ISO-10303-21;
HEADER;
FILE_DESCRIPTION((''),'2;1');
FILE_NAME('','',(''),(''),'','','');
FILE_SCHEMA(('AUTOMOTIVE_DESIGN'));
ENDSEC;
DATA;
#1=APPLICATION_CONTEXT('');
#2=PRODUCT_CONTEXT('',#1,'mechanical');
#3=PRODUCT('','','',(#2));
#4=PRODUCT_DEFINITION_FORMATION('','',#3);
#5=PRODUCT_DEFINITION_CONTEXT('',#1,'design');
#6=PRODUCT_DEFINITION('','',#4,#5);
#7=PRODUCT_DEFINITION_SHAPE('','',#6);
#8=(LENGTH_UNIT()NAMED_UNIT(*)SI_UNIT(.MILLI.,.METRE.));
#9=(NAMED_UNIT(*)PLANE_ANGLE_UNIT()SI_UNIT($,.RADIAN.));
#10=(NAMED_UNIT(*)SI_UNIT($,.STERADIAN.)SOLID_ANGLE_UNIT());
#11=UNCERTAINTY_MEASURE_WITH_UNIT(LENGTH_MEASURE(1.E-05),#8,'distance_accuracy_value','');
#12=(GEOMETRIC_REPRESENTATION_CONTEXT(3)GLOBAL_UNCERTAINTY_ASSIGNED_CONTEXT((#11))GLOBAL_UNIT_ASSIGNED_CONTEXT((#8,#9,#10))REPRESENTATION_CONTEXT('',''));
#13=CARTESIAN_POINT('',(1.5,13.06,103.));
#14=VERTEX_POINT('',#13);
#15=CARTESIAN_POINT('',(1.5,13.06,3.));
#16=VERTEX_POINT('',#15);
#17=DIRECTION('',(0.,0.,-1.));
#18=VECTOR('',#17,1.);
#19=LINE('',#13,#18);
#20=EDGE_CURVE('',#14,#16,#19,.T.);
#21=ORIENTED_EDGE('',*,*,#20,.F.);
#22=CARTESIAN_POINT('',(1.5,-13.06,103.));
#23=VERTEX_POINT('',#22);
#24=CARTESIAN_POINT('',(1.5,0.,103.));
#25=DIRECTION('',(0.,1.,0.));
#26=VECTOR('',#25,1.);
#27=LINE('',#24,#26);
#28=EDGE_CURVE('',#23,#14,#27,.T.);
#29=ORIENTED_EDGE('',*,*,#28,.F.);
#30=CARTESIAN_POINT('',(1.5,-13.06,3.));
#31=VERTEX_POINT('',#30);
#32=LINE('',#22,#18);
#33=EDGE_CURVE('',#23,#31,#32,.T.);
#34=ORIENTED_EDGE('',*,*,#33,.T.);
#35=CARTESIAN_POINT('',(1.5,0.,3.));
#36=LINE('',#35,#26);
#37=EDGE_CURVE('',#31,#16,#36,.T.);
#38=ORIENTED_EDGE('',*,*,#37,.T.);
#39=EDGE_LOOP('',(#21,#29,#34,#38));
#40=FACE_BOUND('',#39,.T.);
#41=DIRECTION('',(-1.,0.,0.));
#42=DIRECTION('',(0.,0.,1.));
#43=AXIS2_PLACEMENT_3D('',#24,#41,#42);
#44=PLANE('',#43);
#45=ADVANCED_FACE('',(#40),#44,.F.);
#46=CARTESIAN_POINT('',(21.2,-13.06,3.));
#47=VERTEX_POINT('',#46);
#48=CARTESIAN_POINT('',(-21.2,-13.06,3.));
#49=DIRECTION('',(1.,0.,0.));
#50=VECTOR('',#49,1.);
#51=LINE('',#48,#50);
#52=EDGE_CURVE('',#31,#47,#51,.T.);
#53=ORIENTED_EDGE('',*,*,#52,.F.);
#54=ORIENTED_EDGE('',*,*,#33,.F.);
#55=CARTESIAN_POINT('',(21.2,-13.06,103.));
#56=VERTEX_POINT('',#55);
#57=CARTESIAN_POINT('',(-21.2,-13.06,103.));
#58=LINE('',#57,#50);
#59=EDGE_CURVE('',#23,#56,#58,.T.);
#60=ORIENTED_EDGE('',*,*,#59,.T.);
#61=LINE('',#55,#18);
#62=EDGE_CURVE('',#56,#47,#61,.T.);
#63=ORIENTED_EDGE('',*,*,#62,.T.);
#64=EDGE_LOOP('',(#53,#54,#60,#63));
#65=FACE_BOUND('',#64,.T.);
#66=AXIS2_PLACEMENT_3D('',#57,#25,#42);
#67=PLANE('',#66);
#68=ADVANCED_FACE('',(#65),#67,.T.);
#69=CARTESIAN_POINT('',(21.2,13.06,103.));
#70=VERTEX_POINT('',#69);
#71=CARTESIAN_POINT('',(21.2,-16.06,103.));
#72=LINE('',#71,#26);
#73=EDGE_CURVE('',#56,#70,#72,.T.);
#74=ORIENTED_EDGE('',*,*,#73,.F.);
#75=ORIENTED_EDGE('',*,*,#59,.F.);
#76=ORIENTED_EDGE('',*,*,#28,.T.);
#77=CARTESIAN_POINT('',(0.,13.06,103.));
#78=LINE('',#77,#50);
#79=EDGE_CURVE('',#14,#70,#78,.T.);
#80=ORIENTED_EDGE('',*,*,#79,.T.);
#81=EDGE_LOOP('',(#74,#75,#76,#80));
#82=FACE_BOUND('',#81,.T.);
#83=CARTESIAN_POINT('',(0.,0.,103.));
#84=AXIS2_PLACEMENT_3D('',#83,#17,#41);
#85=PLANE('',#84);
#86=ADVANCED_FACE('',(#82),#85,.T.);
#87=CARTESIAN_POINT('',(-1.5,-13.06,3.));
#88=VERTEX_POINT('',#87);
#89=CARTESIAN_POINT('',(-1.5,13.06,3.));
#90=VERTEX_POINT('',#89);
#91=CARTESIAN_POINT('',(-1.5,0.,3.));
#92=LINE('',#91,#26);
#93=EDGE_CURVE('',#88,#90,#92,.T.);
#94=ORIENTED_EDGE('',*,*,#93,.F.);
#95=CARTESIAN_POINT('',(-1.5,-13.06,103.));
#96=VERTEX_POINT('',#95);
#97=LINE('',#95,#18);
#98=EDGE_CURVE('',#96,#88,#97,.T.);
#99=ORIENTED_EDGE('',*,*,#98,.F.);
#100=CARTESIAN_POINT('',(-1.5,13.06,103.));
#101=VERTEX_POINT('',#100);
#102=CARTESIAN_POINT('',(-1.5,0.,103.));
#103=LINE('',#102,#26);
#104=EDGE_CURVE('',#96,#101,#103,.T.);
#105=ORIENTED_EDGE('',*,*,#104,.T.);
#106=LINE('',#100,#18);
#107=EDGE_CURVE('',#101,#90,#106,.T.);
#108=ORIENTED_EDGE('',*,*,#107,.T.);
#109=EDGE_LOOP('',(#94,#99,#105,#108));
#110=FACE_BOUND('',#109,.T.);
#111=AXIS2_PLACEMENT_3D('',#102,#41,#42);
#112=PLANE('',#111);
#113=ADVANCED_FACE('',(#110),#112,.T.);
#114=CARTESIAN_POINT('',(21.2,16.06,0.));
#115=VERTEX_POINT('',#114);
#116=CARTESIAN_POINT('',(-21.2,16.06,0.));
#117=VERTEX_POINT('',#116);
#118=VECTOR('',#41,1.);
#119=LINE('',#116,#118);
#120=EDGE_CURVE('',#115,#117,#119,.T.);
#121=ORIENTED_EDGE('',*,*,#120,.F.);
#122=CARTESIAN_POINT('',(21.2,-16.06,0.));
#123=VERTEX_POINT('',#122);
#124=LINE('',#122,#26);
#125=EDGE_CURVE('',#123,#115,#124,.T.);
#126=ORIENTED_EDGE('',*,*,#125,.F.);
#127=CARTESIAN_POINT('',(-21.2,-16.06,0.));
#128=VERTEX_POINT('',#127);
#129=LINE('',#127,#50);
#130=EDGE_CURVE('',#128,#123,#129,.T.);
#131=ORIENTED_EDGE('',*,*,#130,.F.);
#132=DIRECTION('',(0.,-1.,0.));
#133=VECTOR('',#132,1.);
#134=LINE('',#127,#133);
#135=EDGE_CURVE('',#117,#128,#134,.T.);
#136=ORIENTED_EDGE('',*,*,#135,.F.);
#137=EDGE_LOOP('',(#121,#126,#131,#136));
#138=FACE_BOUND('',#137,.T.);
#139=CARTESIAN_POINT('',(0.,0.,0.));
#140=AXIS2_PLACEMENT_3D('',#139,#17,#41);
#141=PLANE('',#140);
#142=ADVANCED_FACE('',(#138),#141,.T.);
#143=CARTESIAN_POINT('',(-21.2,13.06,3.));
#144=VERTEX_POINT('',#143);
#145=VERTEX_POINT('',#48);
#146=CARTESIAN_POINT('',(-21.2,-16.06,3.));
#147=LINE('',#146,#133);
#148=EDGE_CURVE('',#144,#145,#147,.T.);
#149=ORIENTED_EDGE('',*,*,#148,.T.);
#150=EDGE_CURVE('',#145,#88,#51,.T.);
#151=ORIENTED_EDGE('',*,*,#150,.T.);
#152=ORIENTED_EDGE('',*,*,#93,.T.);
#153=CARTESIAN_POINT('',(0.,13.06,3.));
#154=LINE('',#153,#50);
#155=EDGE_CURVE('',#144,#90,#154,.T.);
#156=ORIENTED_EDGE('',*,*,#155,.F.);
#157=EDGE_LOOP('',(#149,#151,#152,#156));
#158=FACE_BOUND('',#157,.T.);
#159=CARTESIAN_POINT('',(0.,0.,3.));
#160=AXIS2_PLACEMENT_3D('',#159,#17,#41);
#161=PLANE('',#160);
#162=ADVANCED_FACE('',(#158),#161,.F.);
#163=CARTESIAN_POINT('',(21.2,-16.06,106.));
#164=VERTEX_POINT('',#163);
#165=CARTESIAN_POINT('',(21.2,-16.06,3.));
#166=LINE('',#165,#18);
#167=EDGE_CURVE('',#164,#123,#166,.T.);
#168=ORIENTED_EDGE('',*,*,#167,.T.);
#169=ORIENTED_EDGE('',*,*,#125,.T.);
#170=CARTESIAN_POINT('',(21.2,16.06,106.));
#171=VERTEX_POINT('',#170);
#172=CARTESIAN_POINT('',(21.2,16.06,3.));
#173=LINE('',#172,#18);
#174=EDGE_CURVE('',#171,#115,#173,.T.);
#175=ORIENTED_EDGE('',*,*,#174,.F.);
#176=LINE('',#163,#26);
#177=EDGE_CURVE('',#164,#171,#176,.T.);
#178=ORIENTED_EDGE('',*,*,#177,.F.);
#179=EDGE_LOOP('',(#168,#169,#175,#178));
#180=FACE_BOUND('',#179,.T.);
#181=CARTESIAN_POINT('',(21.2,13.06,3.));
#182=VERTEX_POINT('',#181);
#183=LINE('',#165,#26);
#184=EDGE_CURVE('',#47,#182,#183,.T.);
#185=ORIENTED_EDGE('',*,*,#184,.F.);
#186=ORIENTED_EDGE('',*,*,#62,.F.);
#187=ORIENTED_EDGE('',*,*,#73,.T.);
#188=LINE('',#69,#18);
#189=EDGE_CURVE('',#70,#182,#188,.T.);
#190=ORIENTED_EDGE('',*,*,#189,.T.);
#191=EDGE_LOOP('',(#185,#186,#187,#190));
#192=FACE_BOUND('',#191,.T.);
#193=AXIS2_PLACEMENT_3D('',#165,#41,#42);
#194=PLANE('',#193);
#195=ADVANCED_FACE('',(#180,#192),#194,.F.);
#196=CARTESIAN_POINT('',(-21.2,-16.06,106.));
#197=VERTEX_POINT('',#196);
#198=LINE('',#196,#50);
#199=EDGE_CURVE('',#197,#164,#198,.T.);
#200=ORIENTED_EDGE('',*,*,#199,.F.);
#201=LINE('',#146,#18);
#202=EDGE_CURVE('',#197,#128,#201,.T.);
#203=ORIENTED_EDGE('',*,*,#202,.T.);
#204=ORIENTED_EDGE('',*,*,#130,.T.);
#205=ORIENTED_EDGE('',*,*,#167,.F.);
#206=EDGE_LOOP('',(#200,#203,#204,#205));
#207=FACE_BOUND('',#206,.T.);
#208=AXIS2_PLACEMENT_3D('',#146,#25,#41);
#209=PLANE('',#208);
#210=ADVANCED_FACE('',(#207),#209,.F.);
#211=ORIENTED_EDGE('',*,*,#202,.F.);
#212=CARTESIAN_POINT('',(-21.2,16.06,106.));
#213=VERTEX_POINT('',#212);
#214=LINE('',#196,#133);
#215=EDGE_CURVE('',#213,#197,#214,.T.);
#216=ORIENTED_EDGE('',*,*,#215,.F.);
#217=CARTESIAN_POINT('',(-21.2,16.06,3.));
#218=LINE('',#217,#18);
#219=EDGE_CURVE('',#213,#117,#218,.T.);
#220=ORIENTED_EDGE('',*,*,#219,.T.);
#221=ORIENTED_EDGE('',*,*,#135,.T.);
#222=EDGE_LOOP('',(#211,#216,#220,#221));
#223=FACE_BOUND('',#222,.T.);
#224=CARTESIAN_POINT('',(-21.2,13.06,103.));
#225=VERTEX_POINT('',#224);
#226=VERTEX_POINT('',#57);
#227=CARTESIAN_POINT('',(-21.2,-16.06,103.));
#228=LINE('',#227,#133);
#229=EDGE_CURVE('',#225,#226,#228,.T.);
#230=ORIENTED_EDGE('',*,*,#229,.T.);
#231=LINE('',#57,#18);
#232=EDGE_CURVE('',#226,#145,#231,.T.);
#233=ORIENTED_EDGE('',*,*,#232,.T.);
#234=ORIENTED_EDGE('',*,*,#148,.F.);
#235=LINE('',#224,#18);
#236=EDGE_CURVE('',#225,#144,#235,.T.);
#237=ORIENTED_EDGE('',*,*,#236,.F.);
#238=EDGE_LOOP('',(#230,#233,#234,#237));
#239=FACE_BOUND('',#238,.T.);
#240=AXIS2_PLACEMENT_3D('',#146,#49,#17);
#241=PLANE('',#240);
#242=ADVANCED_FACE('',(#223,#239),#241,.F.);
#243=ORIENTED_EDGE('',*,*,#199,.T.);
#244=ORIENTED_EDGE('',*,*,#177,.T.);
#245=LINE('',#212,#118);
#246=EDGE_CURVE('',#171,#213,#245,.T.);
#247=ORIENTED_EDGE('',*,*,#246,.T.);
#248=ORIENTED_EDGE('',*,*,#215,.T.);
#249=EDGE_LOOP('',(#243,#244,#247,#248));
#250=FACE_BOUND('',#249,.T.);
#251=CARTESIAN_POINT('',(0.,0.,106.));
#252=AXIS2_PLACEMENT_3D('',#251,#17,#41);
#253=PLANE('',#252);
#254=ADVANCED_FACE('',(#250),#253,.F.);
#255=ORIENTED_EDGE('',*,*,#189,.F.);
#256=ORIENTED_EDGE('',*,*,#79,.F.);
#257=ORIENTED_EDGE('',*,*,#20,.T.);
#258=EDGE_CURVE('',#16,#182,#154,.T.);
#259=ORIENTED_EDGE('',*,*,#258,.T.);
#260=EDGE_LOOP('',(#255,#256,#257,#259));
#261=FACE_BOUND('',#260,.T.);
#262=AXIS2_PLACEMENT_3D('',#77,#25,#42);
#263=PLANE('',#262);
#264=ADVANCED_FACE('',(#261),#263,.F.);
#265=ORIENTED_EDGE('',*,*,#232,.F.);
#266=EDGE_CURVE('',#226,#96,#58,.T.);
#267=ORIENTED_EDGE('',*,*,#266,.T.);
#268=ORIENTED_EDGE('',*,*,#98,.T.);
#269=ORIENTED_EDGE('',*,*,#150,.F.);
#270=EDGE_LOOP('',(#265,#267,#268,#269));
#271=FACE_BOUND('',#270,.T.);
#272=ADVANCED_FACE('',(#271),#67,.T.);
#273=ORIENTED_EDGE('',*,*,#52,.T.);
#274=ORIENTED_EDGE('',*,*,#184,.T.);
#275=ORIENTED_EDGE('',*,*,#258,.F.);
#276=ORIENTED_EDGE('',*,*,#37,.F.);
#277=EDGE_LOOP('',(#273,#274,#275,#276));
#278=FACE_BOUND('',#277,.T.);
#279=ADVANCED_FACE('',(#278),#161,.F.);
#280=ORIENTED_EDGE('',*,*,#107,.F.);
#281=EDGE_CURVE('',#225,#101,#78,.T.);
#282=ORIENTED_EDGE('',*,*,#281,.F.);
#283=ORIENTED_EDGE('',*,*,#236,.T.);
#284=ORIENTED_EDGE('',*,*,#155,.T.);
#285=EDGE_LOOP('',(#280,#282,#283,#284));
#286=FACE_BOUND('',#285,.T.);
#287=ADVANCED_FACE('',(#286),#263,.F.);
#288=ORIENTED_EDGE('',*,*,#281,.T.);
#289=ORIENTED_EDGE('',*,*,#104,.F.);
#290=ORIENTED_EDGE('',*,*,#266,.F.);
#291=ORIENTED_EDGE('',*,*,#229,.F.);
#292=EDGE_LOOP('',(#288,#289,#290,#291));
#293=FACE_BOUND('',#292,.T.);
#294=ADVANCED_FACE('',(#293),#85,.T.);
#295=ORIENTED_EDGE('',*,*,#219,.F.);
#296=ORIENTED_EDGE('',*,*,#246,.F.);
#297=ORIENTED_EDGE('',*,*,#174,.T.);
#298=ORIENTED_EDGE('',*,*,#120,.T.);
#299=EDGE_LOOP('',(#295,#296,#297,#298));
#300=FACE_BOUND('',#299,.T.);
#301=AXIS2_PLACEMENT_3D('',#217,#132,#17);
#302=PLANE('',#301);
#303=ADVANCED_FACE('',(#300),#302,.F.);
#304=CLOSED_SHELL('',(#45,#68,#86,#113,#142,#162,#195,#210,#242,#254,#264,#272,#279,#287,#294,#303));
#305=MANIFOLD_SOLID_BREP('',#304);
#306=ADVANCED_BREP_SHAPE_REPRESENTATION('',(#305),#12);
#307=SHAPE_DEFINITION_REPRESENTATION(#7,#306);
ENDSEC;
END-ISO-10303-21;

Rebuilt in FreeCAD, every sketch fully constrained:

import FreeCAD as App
import Part
import Sketcher

V = App.Vector
Q = App.Units.Quantity

doc = App.newDocument("Part")
body = doc.addObject("PartDesign::Body", "Body")

# Sketch on XY plane
sketch1 = body.newObject("Sketcher::SketchObject", "Sketch")
sketch1.AttachmentSupport = (doc.getObject("XY_Plane"), [""])
sketch1.MapMode = "FlatFace"
sketch1.addGeometry([
    Part.LineSegment(V(-21.2, 16.06, 0), V(-21.2, -16.06, 0)),
    Part.LineSegment(V(-21.2, -16.06, 0), V(21.2, -16.06, 0)),
    Part.LineSegment(V(21.2, -16.06, 0), V(21.2, 16.06, 0)),
    Part.LineSegment(V(21.2, 16.06, 0), V(-21.2, 16.06, 0)),
], False)
sketch1.addConstraint([
    Sketcher.Constraint("Coincident", 0, 2, 1, 1),
    Sketcher.Constraint("Coincident", 1, 2, 2, 1),
    Sketcher.Constraint("Coincident", 2, 2, 3, 1),
    Sketcher.Constraint("Coincident", 3, 2, 0, 1),
    Sketcher.Constraint("Vertical", 0),
    Sketcher.Constraint("Horizontal", 1),
    Sketcher.Constraint("Vertical", 2),
    Sketcher.Constraint("Horizontal", 3),
    Sketcher.Constraint("Symmetric", 0, 2, 2, 2, -1, 1),
    Sketcher.Constraint("DistanceX", 1, 1, 1, 2, Q("42.4 mm")),
    Sketcher.Constraint("DistanceY", 0, 2, 0, 1, Q("32.12 mm")),
])
pad1 = body.newObject("PartDesign::Pad", "Pad")
pad1.Profile = sketch1
pad1.Length = 3

# Sketch on XY plane
sketch2 = body.newObject("Sketcher::SketchObject", "Sketch001")
sketch2.AttachmentSupport = (doc.getObject("XY_Plane"), [""])
sketch2.MapMode = "FlatFace"
sketch2.AttachmentOffset = App.Placement(V(0, 0, 3), App.Rotation())
sketch2.addGeometry([
    Part.LineSegment(V(-21.2, 16.06, 0), V(-21.2, 13.06, 0)),  # 0
    Part.LineSegment(V(-21.2, 13.06, 0), V(-1.5, 13.06, 0)),  # 1
    Part.LineSegment(V(-1.5, 13.06, 0), V(-1.5, -13.06, 0)),  # 2
    Part.LineSegment(V(-1.5, -13.06, 0), V(-21.2, -13.06, 0)),  # 3
    Part.LineSegment(V(-21.2, -13.06, 0), V(-21.2, -16.06, 0)),  # 4
    Part.LineSegment(V(-21.2, -16.06, 0), V(21.2, -16.06, 0)),  # 5
    Part.LineSegment(V(21.2, -16.06, 0), V(21.2, -13.06, 0)),  # 6
    Part.LineSegment(V(21.2, -13.06, 0), V(1.5, -13.06, 0)),  # 7
    Part.LineSegment(V(1.5, -13.06, 0), V(1.5, 13.06, 0)),  # 8
    Part.LineSegment(V(1.5, 13.06, 0), V(21.2, 13.06, 0)),  # 9
    Part.LineSegment(V(21.2, 13.06, 0), V(21.2, 16.06, 0)),  # 10
    Part.LineSegment(V(21.2, 16.06, 0), V(-21.2, 16.06, 0)),  # 11
], False)
sketch2.addConstraint([
    Sketcher.Constraint("Coincident", 0, 2, 1, 1),
    Sketcher.Constraint("Coincident", 1, 2, 2, 1),
    Sketcher.Constraint("Coincident", 2, 2, 3, 1),
    Sketcher.Constraint("Coincident", 3, 2, 4, 1),
    Sketcher.Constraint("Coincident", 4, 2, 5, 1),
    Sketcher.Constraint("Coincident", 5, 2, 6, 1),
    Sketcher.Constraint("Coincident", 6, 2, 7, 1),
    Sketcher.Constraint("Coincident", 7, 2, 8, 1),
    Sketcher.Constraint("Coincident", 8, 2, 9, 1),
    Sketcher.Constraint("Coincident", 9, 2, 10, 1),
    Sketcher.Constraint("Coincident", 10, 2, 11, 1),
    Sketcher.Constraint("Coincident", 11, 2, 0, 1),
    Sketcher.Constraint("Vertical", 0),
    Sketcher.Constraint("Horizontal", 1),
    Sketcher.Constraint("Vertical", 2),
    Sketcher.Constraint("Horizontal", 3),
    Sketcher.Constraint("Vertical", 4),
    Sketcher.Constraint("Horizontal", 5),
    Sketcher.Constraint("Vertical", 6),
    Sketcher.Constraint("Horizontal", 7),
    Sketcher.Constraint("Vertical", 8),
    Sketcher.Constraint("Horizontal", 9),
    Sketcher.Constraint("Vertical", 10),
    Sketcher.Constraint("Horizontal", 11),
    Sketcher.Constraint("Symmetric", 0, 2, 6, 2, -1, 1),
    Sketcher.Constraint("Symmetric", 2, 2, 8, 2, -1, 1),
    Sketcher.Constraint("Symmetric", 4, 2, 10, 2, -1, 1),
    Sketcher.Constraint("Symmetric", 3, 2, 6, 2, -2),
    Sketcher.Constraint("DistanceY", 0, 2, 0, 1, Q("3 mm")),
    Sketcher.Constraint("DistanceX", 1, 1, 1, 2, Q("19.7 mm")),
    Sketcher.Constraint("DistanceX", 5, 1, 5, 2, Q("42.4 mm")),
    Sketcher.Constraint("DistanceY", 2, 2, 2, 1, Q("26.12 mm")),
])
pad2 = body.newObject("PartDesign::Pad", "Pad001")
pad2.Profile = sketch2
pad2.Length = 100

# Sketch on XY plane
sketch3 = body.newObject("Sketcher::SketchObject", "Sketch002")
sketch3.AttachmentSupport = (doc.getObject("XY_Plane"), [""])
sketch3.MapMode = "FlatFace"
sketch3.AttachmentOffset = App.Placement(V(0, 0, 103), App.Rotation())
sketch3.addGeometry([
    Part.LineSegment(V(-21.2, 16.06, 0), V(-21.2, -16.06, 0)),
    Part.LineSegment(V(-21.2, -16.06, 0), V(21.2, -16.06, 0)),
    Part.LineSegment(V(21.2, -16.06, 0), V(21.2, 16.06, 0)),
    Part.LineSegment(V(21.2, 16.06, 0), V(-21.2, 16.06, 0)),
], False)
sketch3.addConstraint([
    Sketcher.Constraint("Coincident", 0, 2, 1, 1),
    Sketcher.Constraint("Coincident", 1, 2, 2, 1),
    Sketcher.Constraint("Coincident", 2, 2, 3, 1),
    Sketcher.Constraint("Coincident", 3, 2, 0, 1),
    Sketcher.Constraint("Vertical", 0),
    Sketcher.Constraint("Horizontal", 1),
    Sketcher.Constraint("Vertical", 2),
    Sketcher.Constraint("Horizontal", 3),
    Sketcher.Constraint("Symmetric", 0, 2, 2, 2, -1, 1),
    Sketcher.Constraint("DistanceX", 1, 1, 1, 2, Q("42.4 mm")),
    Sketcher.Constraint("DistanceY", 0, 2, 0, 1, Q("32.12 mm")),
])
pad3 = body.newObject("PartDesign::Pad", "Pad002")
pad3.Profile = sketch3
pad3.Length = 3

doc.recompute()
